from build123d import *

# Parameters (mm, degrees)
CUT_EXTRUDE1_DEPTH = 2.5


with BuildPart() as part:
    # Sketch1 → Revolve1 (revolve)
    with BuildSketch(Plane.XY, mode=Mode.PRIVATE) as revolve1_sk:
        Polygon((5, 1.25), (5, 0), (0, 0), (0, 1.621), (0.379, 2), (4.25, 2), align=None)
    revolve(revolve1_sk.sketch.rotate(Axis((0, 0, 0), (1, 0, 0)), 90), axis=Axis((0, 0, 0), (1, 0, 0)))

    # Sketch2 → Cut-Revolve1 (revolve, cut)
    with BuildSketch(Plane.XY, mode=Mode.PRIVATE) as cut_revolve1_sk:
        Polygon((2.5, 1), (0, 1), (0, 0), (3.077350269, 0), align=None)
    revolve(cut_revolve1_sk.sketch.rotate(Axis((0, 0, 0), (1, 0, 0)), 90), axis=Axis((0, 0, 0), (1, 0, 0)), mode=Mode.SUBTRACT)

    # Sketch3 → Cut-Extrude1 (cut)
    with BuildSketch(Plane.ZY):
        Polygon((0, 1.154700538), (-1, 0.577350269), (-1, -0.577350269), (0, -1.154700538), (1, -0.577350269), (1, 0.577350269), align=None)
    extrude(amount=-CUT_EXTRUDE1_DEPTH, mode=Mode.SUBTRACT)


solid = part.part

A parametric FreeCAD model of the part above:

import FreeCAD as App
import Part
import Sketcher
Q = App.Units.Quantity

doc = App.newDocument("Part")
body = doc.addObject("PartDesign::Body", "Body")

sketch1 = body.newObject("Sketcher::SketchObject", "Sketch")
sketch1.AttachmentSupport = (doc.getObject("XY_Plane"), [""])
sketch1.MapMode = "FlatFace"
sketch1.addGeometry(Part.LineSegment(App.Vector(5, 0, 0), App.Vector(5, 1.25, 0)), False)
sketch1.addGeometry(Part.LineSegment(App.Vector(5, 1.25, 0), App.Vector(4.25, 2, 0)), False)
sketch1.addGeometry(Part.LineSegment(App.Vector(4.25, 2, 0), App.Vector(0.379, 2, 0)), False)
sketch1.addGeometry(Part.LineSegment(App.Vector(0.379, 2, 0), App.Vector(0, 1.621, 0)), False)
sketch1.addGeometry(Part.LineSegment(App.Vector(0, 1.621, 0), App.Vector(0, 0, 0)), False)
sketch1.addGeometry(Part.LineSegment(App.Vector(0, 0, 0), App.Vector(5, 0, 0)), False)
sketch1.addConstraint(Sketcher.Constraint("Coincident", 0, 2, 1, 1))
sketch1.addConstraint(Sketcher.Constraint("Coincident", 1, 2, 2, 1))
sketch1.addConstraint(Sketcher.Constraint("Coincident", 2, 2, 3, 1))
sketch1.addConstraint(Sketcher.Constraint("Coincident", 3, 2, 4, 1))
sketch1.addConstraint(Sketcher.Constraint("Coincident", 4, 2, 5, 1))
sketch1.addConstraint(Sketcher.Constraint("Coincident", 5, 2, 0, 1))
sketch1.addConstraint(Sketcher.Constraint("Vertical", 0))
sketch1.addConstraint(Sketcher.Constraint("Horizontal", 2))
sketch1.addConstraint(Sketcher.Constraint("Vertical", 4))
sketch1.addConstraint(Sketcher.Constraint("Horizontal", 5))
sketch1.addConstraint(Sketcher.Constraint("Coincident", 4, 2, -1, 1))
sketch1.addConstraint(Sketcher.Constraint("Perpendicular", 1, 3))
sketch1.addConstraint(Sketcher.Constraint("DistanceX", 5, 1, 5, 2, Q("5 mm")))
sketch1.addConstraint(Sketcher.Constraint("Angle", 1, Q("135 deg")))
sketch1.addConstraint(Sketcher.Constraint("DistanceY", -1, 1, 1, 2, Q("2 mm")))
sketch1.addConstraint(Sketcher.Constraint("DistanceY", 0, 1, 0, 2, Q("1.25 mm")))
sketch1.addConstraint(Sketcher.Constraint("DistanceX", 2, 2, 2, 1, Q("3.871 mm")))
revolution = body.newObject("PartDesign::Revolution", "Revolution")
revolution.Profile = sketch1
revolution.ReferenceAxis = (sketch1, ["H_Axis"])
revolution.Angle = 360

sketch2 = body.newObject("Sketcher::SketchObject", "Sketch001")
sketch2.AttachmentSupport = (doc.getObject("XY_Plane"), [""])
sketch2.MapMode = "FlatFace"
sketch2.addGeometry(Part.LineSegment(App.Vector(2.5, 1, 0), App.Vector(0, 1, 0)), False)
sketch2.addGeometry(Part.LineSegment(App.Vector(0, 1, 0), App.Vector(0, 0, 0)), False)
sketch2.addGeometry(Part.LineSegment(App.Vector(0, 0, 0), App.Vector(3.07735, 0, 0)), False)
sketch2.addGeometry(Part.LineSegment(App.Vector(3.07735, 0, 0), App.Vector(2.5, 1, 0)), False)
sketch2.addConstraint(Sketcher.Constraint("Coincident", 0, 2, 1, 1))
sketch2.addConstraint(Sketcher.Constraint("Coincident", 1, 2, 2, 1))
sketch2.addConstraint(Sketcher.Constraint("Coincident", 2, 2, 3, 1))
sketch2.addConstraint(Sketcher.Constraint("Coincident", 3, 2, 0, 1))
sketch2.addConstraint(Sketcher.Constraint("Horizontal", 0))
sketch2.addConstraint(Sketcher.Constraint("Vertical", 1))
sketch2.addConstraint(Sketcher.Constraint("Horizontal", 2))
sketch2.addConstraint(Sketcher.Constraint("Coincident", 1, 2, -1, 1))
sketch2.addConstraint(Sketcher.Constraint("DistanceY", 1, 2, 1, 1, Q("1 mm")))
sketch2.addConstraint(Sketcher.Constraint("Angle", 3, Q("120 deg")))
sketch2.addConstraint(Sketcher.Constraint("DistanceX", 0, 2, 0, 1, Q("2.5 mm")))
groove = body.newObject("PartDesign::Groove", "Groove")
groove.Profile = sketch2
groove.ReferenceAxis = (sketch2, ["H_Axis"])
groove.Angle = 360

sketch3 = body.newObject("Sketcher::SketchObject", "Sketch002")
sketch3.AttachmentSupport = (doc.getObject("YZ_Plane"), [""])
sketch3.MapMode = "FlatFace"
sketch3.addGeometry(Part.LineSegment(App.Vector(1.154701, 0, 0), App.Vector(0.57735, -1, 0)), False)
sketch3.addGeometry(Part.LineSegment(App.Vector(0.57735, -1, 0), App.Vector(-0.57735, -1, 0)), False)
sketch3.addGeometry(Part.LineSegment(App.Vector(-0.57735, -1, 0), App.Vector(-1.154701, 0, 0)), False)
sketch3.addGeometry(Part.LineSegment(App.Vector(-1.154701, 0, 0), App.Vector(-0.57735, 1, 0)), False)
sketch3.addGeometry(Part.LineSegment(App.Vector(-0.57735, 1, 0), App.Vector(0.57735, 1, 0)), False)
sketch3.addGeometry(Part.LineSegment(App.Vector(0.57735, 1, 0), App.Vector(1.154701, 0, 0)), False)
sketch3.addConstraint(Sketcher.Constraint("Coincident", 0, 2, 1, 1))
sketch3.addConstraint(Sketcher.Constraint("Coincident", 1, 2, 2, 1))
sketch3.addConstraint(Sketcher.Constraint("Coincident", 2, 2, 3, 1))
sketch3.addConstraint(Sketcher.Constraint("Coincident", 3, 2, 4, 1))
sketch3.addConstraint(Sketcher.Constraint("Coincident", 4, 2, 5, 1))
sketch3.addConstraint(Sketcher.Constraint("Coincident", 5, 2, 0, 1))
sketch3.addConstraint(Sketcher.Constraint("Horizontal", 1))
sketch3.addConstraint(Sketcher.Constraint("Horizontal", 4))
sketch3.addConstraint(Sketcher.Constraint("Symmetric", 0, 2, 3, 2, -1, 1))
sketch3.addConstraint(Sketcher.Constraint("Symmetric", 2, 2, 5, 2, -1, 1))
sketch3.addConstraint(Sketcher.Constraint("PointOnObject", 2, 2, -1))
sketch3.addConstraint(Sketcher.Constraint("Parallel", 2, 5))
sketch3.addConstraint(Sketcher.Constraint("Vertical", 1, 2, 3, 2))
sketch3.addConstraint(Sketcher.Constraint("Angle", 0, Q("-120 deg")))
sketch3.addConstraint(Sketcher.Constraint("DistanceY", 0, 2, -1, 1, Q("1 mm")))
sketch3.addConstraint(Sketcher.Constraint("DistanceX", 1, 2, 1, 1, Q("1.154701 mm")))
pocket1 = body.newObject("PartDesign::Pocket", "Pocket")
pocket1.Profile = sketch3
pocket1.Length = 2.5
pocket1.Reversed = True

doc.recompute()
